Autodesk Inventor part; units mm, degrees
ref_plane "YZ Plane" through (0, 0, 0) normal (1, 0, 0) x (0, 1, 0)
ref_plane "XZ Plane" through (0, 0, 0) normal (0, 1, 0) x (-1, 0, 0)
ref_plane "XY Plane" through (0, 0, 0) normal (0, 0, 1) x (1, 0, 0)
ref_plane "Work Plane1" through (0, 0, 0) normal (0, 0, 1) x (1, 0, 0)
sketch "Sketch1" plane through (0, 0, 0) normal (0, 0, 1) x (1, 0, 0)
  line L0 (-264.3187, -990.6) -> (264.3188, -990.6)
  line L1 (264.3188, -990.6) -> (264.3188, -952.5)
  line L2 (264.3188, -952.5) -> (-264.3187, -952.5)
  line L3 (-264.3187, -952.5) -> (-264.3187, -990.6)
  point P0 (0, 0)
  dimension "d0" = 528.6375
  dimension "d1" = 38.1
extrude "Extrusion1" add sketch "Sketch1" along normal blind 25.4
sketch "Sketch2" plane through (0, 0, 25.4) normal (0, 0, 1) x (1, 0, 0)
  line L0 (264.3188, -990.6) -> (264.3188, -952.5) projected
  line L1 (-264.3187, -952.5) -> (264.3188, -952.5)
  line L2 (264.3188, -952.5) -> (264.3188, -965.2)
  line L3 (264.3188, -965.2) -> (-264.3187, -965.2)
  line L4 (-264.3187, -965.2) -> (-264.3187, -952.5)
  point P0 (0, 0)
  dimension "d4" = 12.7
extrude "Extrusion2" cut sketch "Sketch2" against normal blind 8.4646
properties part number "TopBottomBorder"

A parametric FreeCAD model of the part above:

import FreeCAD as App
import Part
import Sketcher
from FreeCAD import Vector
Q = App.Units.Quantity


def add_polygon(sketch, points):
    """Adds a closed chain of lines whose ends are joined by coincident constraints."""
    first, n = sketch.GeometryCount, len(points)
    for a, b in zip(points, points[1:] + points[:1]):
        sketch.addGeometry(Part.LineSegment(App.Vector(*a, 0), App.Vector(*b, 0)), False)
    for i in range(n):
        sketch.addConstraint(Sketcher.Constraint("Coincident", first + i, 2, first + (i + 1) % n, 1))

doc = App.newDocument("Part")
params = doc.addObject("Spreadsheet::Sheet", "Params")
for row, (alias, value) in enumerate([
    ("sketch1_height", "1.5 in"),
    ("sketch1_width", "20.8125 in"),
    ("pad1_length", "1 in"),
    ("sketch2_height", "0.5 in"),
    ("sketch2_width", "20.8125 in"),
    ("pocket1_length", "8.4646 mm"),
], start=1):
    params.set(f"A{row}", alias)
    params.set(f"B{row}", "=" + value)
    params.setAlias(f"B{row}", alias)

body = doc.addObject("PartDesign::Body", "Body")

# Sketch on XY plane
sketch1 = doc.addObject("Sketcher::SketchObject", "Sketch")
body.addObject(sketch1)
sketch1.AttachmentSupport = (doc.XY_Plane, [""])
sketch1.MapMode = "FlatFace"
add_polygon(sketch1, [(-264.3187, -952.5), (-264.3187, -990.6), (264.3188, -990.6), (264.3188, -952.5)])  # lines 0-3
sketch1.addConstraint(Sketcher.Constraint("Vertical", 0))
sketch1.addConstraint(Sketcher.Constraint("Horizontal", 1))
sketch1.addConstraint(Sketcher.Constraint("Vertical", 2))
sketch1.addConstraint(Sketcher.Constraint("Horizontal", 3))
sketch1.addConstraint(Sketcher.Constraint("DistanceY", 0, 2, 0, 1, Q("1.5 in")))
sketch1.addConstraint(Sketcher.Constraint("DistanceX", 1, 1, 1, 2, Q("20.8125 in")))
sketch1.addConstraint(Sketcher.Constraint("DistanceY", 0, 2, -1, 1, Q("39 in")))
sketch1.addConstraint(Sketcher.Constraint("DistanceX", 0, 2, -1, 1, Q("10.406248 in")))
sketch1.setExpression("Constraints[8]", "Params.sketch1_height")
sketch1.setExpression("Constraints[9]", "Params.sketch1_width")
pad1 = doc.addObject("PartDesign::Pad", "Pad")
body.addObject(pad1)
pad1.Profile = sketch1
pad1.setExpression("Length", "Params.pad1_length")

# Sketch on XY plane
sketch2 = doc.addObject("Sketcher::SketchObject", "Sketch001")
body.addObject(sketch2)
sketch2.AttachmentSupport = (doc.XY_Plane, [""])
sketch2.MapMode = "FlatFace"
sketch2.AttachmentOffset = App.Placement(Vector(0, 0, 1 * 25.4), App.Rotation())
add_polygon(sketch2, [(-264.3187, -965.2), (264.3188, -965.2), (264.3188, -952.5), (-264.3187, -952.5)])  # lines 0-3
sketch2.addConstraint(Sketcher.Constraint("Horizontal", 0))
sketch2.addConstraint(Sketcher.Constraint("Vertical", 1))
sketch2.addConstraint(Sketcher.Constraint("Horizontal", 2))
sketch2.addConstraint(Sketcher.Constraint("Vertical", 3))
sketch2.addConstraint(Sketcher.Constraint("DistanceY", 1, 1, 1, 2, Q("0.5 in")))
sketch2.addConstraint(Sketcher.Constraint("DistanceY", 0, 2, -1, 1, Q("38 in")))
sketch2.addConstraint(Sketcher.Constraint("DistanceX", 0, 1, 0, 2, Q("20.8125 in")))
sketch2.addConstraint(Sketcher.Constraint("DistanceX", -1, 1, 0, 2, Q("10.406252 in")))
sketch2.setExpression("Constraints[8]", "Params.sketch2_height")
sketch2.setExpression("Constraints[10]", "Params.sketch2_width")
pocket1 = doc.addObject("PartDesign::Pocket", "Pocket")
body.addObject(pocket1)
pocket1.Profile = sketch2
pocket1.setExpression("Length", "Params.pocket1_length")

doc.recompute()
